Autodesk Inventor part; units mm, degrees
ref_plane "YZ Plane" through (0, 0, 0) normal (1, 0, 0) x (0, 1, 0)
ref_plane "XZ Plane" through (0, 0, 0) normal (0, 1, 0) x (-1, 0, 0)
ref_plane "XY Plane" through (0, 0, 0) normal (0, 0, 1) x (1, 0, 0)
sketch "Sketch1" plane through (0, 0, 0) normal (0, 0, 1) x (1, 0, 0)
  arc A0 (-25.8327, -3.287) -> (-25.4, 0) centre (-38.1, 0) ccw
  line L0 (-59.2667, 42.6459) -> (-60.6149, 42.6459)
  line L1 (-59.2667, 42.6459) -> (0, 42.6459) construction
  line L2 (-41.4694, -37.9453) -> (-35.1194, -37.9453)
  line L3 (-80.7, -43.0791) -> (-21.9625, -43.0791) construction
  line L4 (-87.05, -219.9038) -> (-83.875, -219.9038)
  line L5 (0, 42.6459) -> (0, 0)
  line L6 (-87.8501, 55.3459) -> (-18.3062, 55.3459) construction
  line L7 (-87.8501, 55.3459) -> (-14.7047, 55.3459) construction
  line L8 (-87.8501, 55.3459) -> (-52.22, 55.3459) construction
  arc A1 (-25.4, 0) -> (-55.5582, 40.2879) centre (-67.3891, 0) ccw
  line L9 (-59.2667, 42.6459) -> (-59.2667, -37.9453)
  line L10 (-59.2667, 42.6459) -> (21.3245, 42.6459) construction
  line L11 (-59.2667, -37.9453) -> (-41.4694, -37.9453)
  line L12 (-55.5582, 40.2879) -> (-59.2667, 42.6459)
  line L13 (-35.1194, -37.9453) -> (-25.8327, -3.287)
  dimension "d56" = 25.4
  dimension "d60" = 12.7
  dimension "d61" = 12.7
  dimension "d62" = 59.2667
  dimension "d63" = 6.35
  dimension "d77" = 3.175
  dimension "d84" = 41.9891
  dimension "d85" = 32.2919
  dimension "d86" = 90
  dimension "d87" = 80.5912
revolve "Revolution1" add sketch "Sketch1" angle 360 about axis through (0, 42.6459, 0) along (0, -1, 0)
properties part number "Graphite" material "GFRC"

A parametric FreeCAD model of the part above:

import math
import FreeCAD as App
import Part
import Sketcher
Q = App.Units.Quantity

doc = App.newDocument("Part")
body = doc.addObject("PartDesign::Body", "Body")

# Sketch on XY plane
sketch1 = body.newObject("Sketcher::SketchObject", "Sketch")
sketch1.AttachmentSupport = (doc.getObject("XY_Plane"), [""])
sketch1.MapMode = "FlatFace"
sketch1.addGeometry([
    Part.LineSegment(App.Vector(-35.1194, -37.9453, 0), App.Vector(-25.8327, -3.287, 0)),  # 0
    Part.ArcOfCircle(Part.Circle(App.Vector(-38.097697, -0.000458, 0), App.Vector(0, 0, 1), 12.697697), math.radians(-15.000636), math.radians(0.002067)),  # 1
    Part.ArcOfCircle(Part.Circle(App.Vector(-67.3891, 0, 0), App.Vector(0, 0, 1), 41.9891), math.radians(0), math.radians(73.634655)),  # 2
    Part.LineSegment(App.Vector(-55.5582, 40.2879, 0), App.Vector(-59.2667, 42.6459, 0)),  # 3
    Part.LineSegment(App.Vector(-59.2667, 42.6459, 0), App.Vector(-59.2667, -37.9453, 0)),  # 4
    Part.LineSegment(App.Vector(-59.2667, -37.9453, 0), App.Vector(-35.1194, -37.9453, 0)),  # 5
], False)
sketch1.addConstraint([
    Sketcher.Constraint("Tangent", 0, 2, 1, 1),
    Sketcher.Constraint("Tangent", 1, 2, 2, 1),
    Sketcher.Constraint("Coincident", 2, 2, 3, 1),
    Sketcher.Constraint("Coincident", 3, 2, 4, 1),
    Sketcher.Constraint("Coincident", 4, 2, 5, 1),
    Sketcher.Constraint("Coincident", 5, 2, 0, 1),
    Sketcher.Constraint("Vertical", 4),
    Sketcher.Constraint("Horizontal", 5),
    Sketcher.Constraint("PointOnObject", 2, 3, -1),
    Sketcher.Constraint("PointOnObject", 1, 2, -1),
    Sketcher.Constraint("Radius", 2, 41.989),
    Sketcher.Constraint("DistanceX", 1, 2, -1, 1, 25.4),
    Sketcher.Constraint("Angle", 0, Q("75 deg")),
    Sketcher.Constraint("DistanceY", 4, 2, 4, 1, 80.5912),
    Sketcher.Constraint("DistanceX", 3, 2, -1, 1, 59.2667),
    Sketcher.Constraint("Angle", 3, Q("147.5503 deg")),
    Sketcher.Constraint("Radius", 1, 12.6977),
    Sketcher.Constraint("Distance", 0, 35.881),
])
revolution = body.newObject("PartDesign::Revolution", "Revolution")
revolution.Profile = sketch1
revolution.ReferenceAxis = (sketch1, ["V_Axis"])
revolution.Angle = 360

doc.recompute()
